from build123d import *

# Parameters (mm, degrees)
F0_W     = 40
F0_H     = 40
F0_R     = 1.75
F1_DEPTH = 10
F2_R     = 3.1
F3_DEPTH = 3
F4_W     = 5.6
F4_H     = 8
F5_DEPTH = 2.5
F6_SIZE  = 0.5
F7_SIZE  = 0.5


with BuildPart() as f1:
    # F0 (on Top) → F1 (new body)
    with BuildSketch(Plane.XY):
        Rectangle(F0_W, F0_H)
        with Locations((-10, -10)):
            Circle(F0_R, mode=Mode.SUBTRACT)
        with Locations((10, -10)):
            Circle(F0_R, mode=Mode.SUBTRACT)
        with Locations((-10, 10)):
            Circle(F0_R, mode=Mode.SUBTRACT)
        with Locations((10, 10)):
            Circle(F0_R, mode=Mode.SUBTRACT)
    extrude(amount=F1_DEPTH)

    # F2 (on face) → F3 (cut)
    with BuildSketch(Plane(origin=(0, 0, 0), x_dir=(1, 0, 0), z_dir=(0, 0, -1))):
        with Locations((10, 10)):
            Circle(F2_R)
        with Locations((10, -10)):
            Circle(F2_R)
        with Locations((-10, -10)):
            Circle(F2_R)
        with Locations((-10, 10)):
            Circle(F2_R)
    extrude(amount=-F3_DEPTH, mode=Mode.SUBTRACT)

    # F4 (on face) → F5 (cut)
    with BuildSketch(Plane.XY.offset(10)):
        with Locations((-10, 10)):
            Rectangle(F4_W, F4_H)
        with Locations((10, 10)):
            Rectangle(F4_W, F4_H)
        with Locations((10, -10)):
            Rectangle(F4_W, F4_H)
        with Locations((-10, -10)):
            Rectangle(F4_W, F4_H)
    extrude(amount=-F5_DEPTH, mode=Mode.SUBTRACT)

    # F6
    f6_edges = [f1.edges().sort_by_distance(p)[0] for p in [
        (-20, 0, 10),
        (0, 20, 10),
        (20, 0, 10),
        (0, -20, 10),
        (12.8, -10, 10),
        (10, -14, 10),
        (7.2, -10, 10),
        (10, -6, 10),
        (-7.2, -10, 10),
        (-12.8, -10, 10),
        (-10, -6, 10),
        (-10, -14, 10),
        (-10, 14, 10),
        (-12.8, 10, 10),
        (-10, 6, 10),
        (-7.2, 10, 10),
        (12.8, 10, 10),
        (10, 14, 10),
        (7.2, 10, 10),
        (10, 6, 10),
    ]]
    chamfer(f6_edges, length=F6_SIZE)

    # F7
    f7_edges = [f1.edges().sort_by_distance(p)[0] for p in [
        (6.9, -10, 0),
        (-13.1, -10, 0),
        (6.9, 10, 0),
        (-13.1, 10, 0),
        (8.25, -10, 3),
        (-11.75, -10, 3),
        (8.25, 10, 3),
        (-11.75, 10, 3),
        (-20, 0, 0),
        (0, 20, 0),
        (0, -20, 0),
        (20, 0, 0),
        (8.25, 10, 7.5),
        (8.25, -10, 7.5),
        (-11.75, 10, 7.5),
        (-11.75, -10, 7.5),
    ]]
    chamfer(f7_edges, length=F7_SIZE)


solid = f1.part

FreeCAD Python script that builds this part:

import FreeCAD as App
import Part
import Sketcher
from FreeCAD import Vector
Q = App.Units.Quantity


def edges_at(feature, points):
    """Names of the edges that pass closest to the given points."""
    edges = feature.Shape.Edges
    near = lambda p: min(range(len(edges)), key=lambda i: edges[i].distToShape(Part.Vertex(*p))[0])
    return sorted({f"Edge{near(p) + 1}" for p in points})

doc = App.newDocument("Part")
body = doc.addObject("PartDesign::Body", "Body")

sketch1 = body.newObject("Sketcher::SketchObject", "Sketch")
sketch1.AttachmentSupport = (doc.getObject("XY_Plane"), [""])
sketch1.MapMode = "FlatFace"
sketch1.addGeometry([
    Part.LineSegment(Vector(-20, 20, 0), Vector(-20, -20, 0)),
    Part.LineSegment(Vector(-20, -20, 0), Vector(20, -20, 0)),
    Part.LineSegment(Vector(20, -20, 0), Vector(20, 20, 0)),
    Part.LineSegment(Vector(20, 20, 0), Vector(-20, 20, 0)),
    Part.Circle(Vector(-10, -10, 0), Vector(0, 0, 1), 1.8),
    Part.Circle(Vector(10, -10, 0), Vector(0, 0, 1), 1.8),
    Part.Circle(Vector(-10, 10, 0), Vector(0, 0, 1), 1.8),
    Part.Circle(Vector(10, 10, 0), Vector(0, 0, 1), 1.8),
], False)
sketch1.addConstraint([
    Sketcher.Constraint("Coincident", 0, 2, 1, 1),
    Sketcher.Constraint("Coincident", 1, 2, 2, 1),
    Sketcher.Constraint("Coincident", 2, 2, 3, 1),
    Sketcher.Constraint("Coincident", 3, 2, 0, 1),
    Sketcher.Constraint("Vertical", 0),
    Sketcher.Constraint("Horizontal", 1),
    Sketcher.Constraint("Vertical", 2),
    Sketcher.Constraint("Horizontal", 3),
    Sketcher.Constraint("Equal", 4, 5),
    Sketcher.Constraint("Equal", 5, 6),
    Sketcher.Constraint("Equal", 6, 7),
    Sketcher.Constraint("Symmetric", 5, 3, 6, 3, -1, 1),
    Sketcher.Constraint("Symmetric", 4, 3, 7, 3, -1, 1),
    Sketcher.Constraint("Symmetric", 0, 2, 2, 2, -1, 1),
    Sketcher.Constraint("Symmetric", 4, 3, 5, 3, -2),
    Sketcher.Constraint("Equal", 3, 0),
    Sketcher.Constraint("Diameter", 4, Q("3.5 mm")),
    Sketcher.Constraint("DistanceX", 1, 1, 1, 2, Q("40 mm")),
    Sketcher.Constraint("DistanceX", 4, 3, -1, 1, Q("10 mm")),
    Sketcher.Constraint("DistanceY", 4, 3, -1, 1, Q("10 mm")),
])
pad1 = body.newObject("PartDesign::Pad", "Pad")
pad1.Profile = sketch1
pad1.Length = 10

sketch2 = body.newObject("Sketcher::SketchObject", "Sketch001")
sketch2.AttachmentSupport = (doc.getObject("XY_Plane"), [""])
sketch2.MapMode = "FlatFace"
sketch2.addGeometry([
    Part.Circle(Vector(10, -10, 0), Vector(0, 0, 1), 3.1),
    Part.Circle(Vector(10, 10, 0), Vector(0, 0, 1), 3.1),
    Part.Circle(Vector(-10, 10, 0), Vector(0, 0, 1), 3.1),
    Part.Circle(Vector(-10, -10, 0), Vector(0, 0, 1), 3.1),
], False)
sketch2.addConstraint([
    Sketcher.Constraint("Equal", 0, 1),
    Sketcher.Constraint("Equal", 1, 2),
    Sketcher.Constraint("Equal", 2, 3),
    Sketcher.Constraint("Symmetric", 0, 3, 2, 3, -1, 1),
    Sketcher.Constraint("Symmetric", 1, 3, 3, 3, -1, 1),
    Sketcher.Constraint("Symmetric", 1, 3, 2, 3, -2),
    Sketcher.Constraint("Diameter", 0, Q("6.2 mm")),
    Sketcher.Constraint("DistanceX", -1, 1, 0, 3, Q("10 mm")),
    Sketcher.Constraint("DistanceY", 0, 3, -1, 1, Q("10 mm")),
])
pocket1 = body.newObject("PartDesign::Pocket", "Pocket")
pocket1.Profile = sketch2
pocket1.Length = 3
pocket1.Reversed = True

sketch3 = body.newObject("Sketcher::SketchObject", "Sketch002")
sketch3.AttachmentSupport = (doc.getObject("XY_Plane"), [""])
sketch3.MapMode = "FlatFace"
sketch3.AttachmentOffset = App.Placement(Vector(0, 0, 10), App.Rotation())
sketch3.addGeometry([
    Part.LineSegment(Vector(-13, 14, 0), Vector(-13, 6, 0)),
    Part.LineSegment(Vector(-13, 6, 0), Vector(-7, 6, 0)),
    Part.LineSegment(Vector(-7, 6, 0), Vector(-7, 14, 0)),
    Part.LineSegment(Vector(-7, 14, 0), Vector(-13, 14, 0)),
    Part.LineSegment(Vector(7, 14, 0), Vector(7, 6, 0)),
    Part.LineSegment(Vector(7, 6, 0), Vector(13, 6, 0)),
    Part.LineSegment(Vector(13, 6, 0), Vector(13, 14, 0)),
    Part.LineSegment(Vector(13, 14, 0), Vector(7, 14, 0)),
    Part.LineSegment(Vector(7, -6, 0), Vector(7, -14, 0)),
    Part.LineSegment(Vector(7, -14, 0), Vector(13, -14, 0)),
    Part.LineSegment(Vector(13, -14, 0), Vector(13, -6, 0)),
    Part.LineSegment(Vector(13, -6, 0), Vector(7, -6, 0)),
    Part.LineSegment(Vector(-13, -6, 0), Vector(-13, -14, 0)),
    Part.LineSegment(Vector(-13, -14, 0), Vector(-7, -14, 0)),
    Part.LineSegment(Vector(-7, -14, 0), Vector(-7, -6, 0)),
    Part.LineSegment(Vector(-7, -6, 0), Vector(-13, -6, 0)),
], False)
sketch3.addConstraint([
    Sketcher.Constraint("Coincident", 0, 2, 1, 1),
    Sketcher.Constraint("Coincident", 1, 2, 2, 1),
    Sketcher.Constraint("Coincident", 2, 2, 3, 1),
    Sketcher.Constraint("Coincident", 3, 2, 0, 1),
    Sketcher.Constraint("Coincident", 4, 2, 5, 1),
    Sketcher.Constraint("Coincident", 5, 2, 6, 1),
    Sketcher.Constraint("Coincident", 6, 2, 7, 1),
    Sketcher.Constraint("Coincident", 7, 2, 4, 1),
    Sketcher.Constraint("Coincident", 8, 2, 9, 1),
    Sketcher.Constraint("Coincident", 9, 2, 10, 1),
    Sketcher.Constraint("Coincident", 10, 2, 11, 1),
    Sketcher.Constraint("Coincident", 11, 2, 8, 1),
    Sketcher.Constraint("Coincident", 12, 2, 13, 1),
    Sketcher.Constraint("Coincident", 13, 2, 14, 1),
    Sketcher.Constraint("Coincident", 14, 2, 15, 1),
    Sketcher.Constraint("Coincident", 15, 2, 12, 1),
    Sketcher.Constraint("Vertical", 0),
    Sketcher.Constraint("Horizontal", 1),
    Sketcher.Constraint("Vertical", 2),
    Sketcher.Constraint("Horizontal", 3),
    Sketcher.Constraint("Vertical", 4),
    Sketcher.Constraint("Horizontal", 5),
    Sketcher.Constraint("Vertical", 6),
    Sketcher.Constraint("Horizontal", 7),
    Sketcher.Constraint("Vertical", 8),
    Sketcher.Constraint("Horizontal", 9),
    Sketcher.Constraint("Vertical", 10),
    Sketcher.Constraint("Horizontal", 11),
    Sketcher.Constraint("Vertical", 12),
    Sketcher.Constraint("Horizontal", 13),
    Sketcher.Constraint("Vertical", 14),
    Sketcher.Constraint("Horizontal", 15),
    Sketcher.Constraint("Symmetric", 2, 2, 8, 2, -1, 1),
    Sketcher.Constraint("Symmetric", 0, 2, 10, 2, -1, 1),
    Sketcher.Constraint("Symmetric", 6, 2, 12, 2, -1, 1),
    Sketcher.Constraint("Symmetric", 4, 2, 14, 2, -1, 1),
    Sketcher.Constraint("Symmetric", 1, 2, 4, 2, -2),
    Sketcher.Constraint("Symmetric", 3, 2, 6, 2, -2),
    Sketcher.Constraint("DistanceY", 0, 2, 0, 1, Q("8 mm")),
    Sketcher.Constraint("DistanceX", 1, 1, 1, 2, Q("5.6 mm")),
    Sketcher.Constraint("DistanceY", -1, 1, 0, 2, Q("6 mm")),
    Sketcher.Constraint("DistanceX", 0, 2, 4, 2, Q("20 mm")),
])
pocket2 = body.newObject("PartDesign::Pocket", "Pocket001")
pocket2.Profile = sketch3
pocket2.Length = 2.5
doc.recompute()

chamfer = body.newObject("PartDesign::Chamfer", "Chamfer")
chamfer.Base = (pocket2, edges_at(pocket2, [
    (-20, 0, 10),
    (0, 20, 10),
    (20, 0, 10),
    (0, -20, 10),
    (12.8, -10, 10),
    (10, -14, 10),
    (7.2, -10, 10),
    (10, -6, 10),
    (-7.2, -10, 10),
    (-12.8, -10, 10),
    (-10, -6, 10),
    (-10, -14, 10),
    (-10, 14, 10),
    (-12.8, 10, 10),
    (-10, 6, 10),
    (-7.2, 10, 10),
    (12.8, 10, 10),
    (10, 14, 10),
    (7.2, 10, 10),
    (10, 6, 10),
]))
chamfer.Size = 0.5
doc.recompute()

chamfer2 = body.newObject("PartDesign::Chamfer", "Chamfer001")
chamfer2.Base = (chamfer, edges_at(chamfer, [
    (6.9, -10, 0),
    (-13.1, -10, 0),
    (6.9, 10, 0),
    (-13.1, 10, 0),
    (8.25, -10, 3),
    (-11.75, -10, 3),
    (8.25, 10, 3),
    (-11.75, 10, 3),
    (-20, 0, 0),
    (0, 20, 0),
    (0, -20, 0),
    (20, 0, 0),
    (8.25, 10, 7.5),
    (8.25, -10, 7.5),
    (-11.75, 10, 7.5),
    (-11.75, -10, 7.5),
]))
chamfer2.Size = 0.5

doc.recompute()
